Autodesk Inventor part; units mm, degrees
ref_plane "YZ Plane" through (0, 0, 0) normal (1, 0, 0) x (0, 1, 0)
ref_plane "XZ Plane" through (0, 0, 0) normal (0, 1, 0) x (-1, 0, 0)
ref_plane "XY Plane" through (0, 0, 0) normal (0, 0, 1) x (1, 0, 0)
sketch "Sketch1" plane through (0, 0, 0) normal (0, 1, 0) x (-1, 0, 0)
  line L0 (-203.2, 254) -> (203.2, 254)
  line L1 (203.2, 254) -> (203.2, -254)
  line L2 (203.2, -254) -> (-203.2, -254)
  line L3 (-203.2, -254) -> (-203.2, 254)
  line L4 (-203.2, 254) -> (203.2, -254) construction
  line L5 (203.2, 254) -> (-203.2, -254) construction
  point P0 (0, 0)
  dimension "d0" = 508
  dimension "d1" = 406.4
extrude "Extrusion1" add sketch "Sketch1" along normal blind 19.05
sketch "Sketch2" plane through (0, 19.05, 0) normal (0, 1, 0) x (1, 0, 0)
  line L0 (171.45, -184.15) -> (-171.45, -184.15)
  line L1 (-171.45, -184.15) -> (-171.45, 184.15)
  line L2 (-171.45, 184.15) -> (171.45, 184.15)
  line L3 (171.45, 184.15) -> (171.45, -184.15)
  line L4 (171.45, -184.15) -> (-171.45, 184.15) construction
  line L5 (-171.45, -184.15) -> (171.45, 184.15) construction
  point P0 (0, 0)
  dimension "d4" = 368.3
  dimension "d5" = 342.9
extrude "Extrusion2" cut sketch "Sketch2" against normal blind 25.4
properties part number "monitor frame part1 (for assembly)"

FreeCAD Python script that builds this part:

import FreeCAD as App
import Part
import Sketcher
Q = App.Units.Quantity

doc = App.newDocument("Part")
body = doc.addObject("PartDesign::Body", "Body")

# Sketch on XZ plane
sketch1 = body.newObject("Sketcher::SketchObject", "Sketch")
sketch1.AttachmentSupport = (doc.getObject("XZ_Plane"), [""])
sketch1.MapMode = "FlatFace"
sketch1.addGeometry([
    Part.LineSegment(App.Vector(-203, 254, 0), App.Vector(203, 254, 0)),
    Part.LineSegment(App.Vector(203, 254, 0), App.Vector(203, -254, 0)),
    Part.LineSegment(App.Vector(203, -254, 0), App.Vector(-203, -254, 0)),
    Part.LineSegment(App.Vector(-203, -254, 0), App.Vector(-203, 254, 0)),
], False)
sketch1.addConstraint([
    Sketcher.Constraint("Coincident", 0, 2, 1, 1),
    Sketcher.Constraint("Coincident", 1, 2, 2, 1),
    Sketcher.Constraint("Coincident", 2, 2, 3, 1),
    Sketcher.Constraint("Coincident", 3, 2, 0, 1),
    Sketcher.Constraint("Horizontal", 0),
    Sketcher.Constraint("Vertical", 1),
    Sketcher.Constraint("Horizontal", 2),
    Sketcher.Constraint("Vertical", 3),
    Sketcher.Constraint("Symmetric", 0, 2, 2, 2, -1, 1),
    Sketcher.Constraint("DistanceX", 0, 1, 0, 2, Q("16 in")),
    Sketcher.Constraint("DistanceY", 1, 2, 1, 1, Q("20 in")),
])
pad1 = body.newObject("PartDesign::Pad", "Pad")
pad1.Profile = sketch1
pad1.Length = Q("0.75 in")
pad1.Reversed = True

# Sketch on XZ plane
sketch2 = body.newObject("Sketcher::SketchObject", "Sketch001")
sketch2.AttachmentSupport = (doc.getObject("XZ_Plane"), [""])
sketch2.MapMode = "FlatFace"
sketch2.AttachmentOffset = App.Placement(App.Vector(0, 0, -0.75 * 25.4), App.Rotation())
sketch2.addGeometry([
    Part.LineSegment(App.Vector(-171, 184, 0), App.Vector(171, 184, 0)),
    Part.LineSegment(App.Vector(171, 184, 0), App.Vector(171, -184, 0)),
    Part.LineSegment(App.Vector(171, -184, 0), App.Vector(-171, -184, 0)),
    Part.LineSegment(App.Vector(-171, -184, 0), App.Vector(-171, 184, 0)),
], False)
sketch2.addConstraint([
    Sketcher.Constraint("Coincident", 0, 2, 1, 1),
    Sketcher.Constraint("Coincident", 1, 2, 2, 1),
    Sketcher.Constraint("Coincident", 2, 2, 3, 1),
    Sketcher.Constraint("Coincident", 3, 2, 0, 1),
    Sketcher.Constraint("Horizontal", 0),
    Sketcher.Constraint("Vertical", 1),
    Sketcher.Constraint("Horizontal", 2),
    Sketcher.Constraint("Vertical", 3),
    Sketcher.Constraint("Symmetric", 0, 2, 2, 2, -1, 1),
    Sketcher.Constraint("DistanceX", 0, 1, 0, 2, Q("13.5 in")),
    Sketcher.Constraint("DistanceY", 1, 2, 1, 1, Q("14.5 in")),
])
pocket1 = body.newObject("PartDesign::Pocket", "Pocket")
pocket1.Profile = sketch2
pocket1.Length = Q("1 in")
pocket1.Reversed = True

doc.recompute()
